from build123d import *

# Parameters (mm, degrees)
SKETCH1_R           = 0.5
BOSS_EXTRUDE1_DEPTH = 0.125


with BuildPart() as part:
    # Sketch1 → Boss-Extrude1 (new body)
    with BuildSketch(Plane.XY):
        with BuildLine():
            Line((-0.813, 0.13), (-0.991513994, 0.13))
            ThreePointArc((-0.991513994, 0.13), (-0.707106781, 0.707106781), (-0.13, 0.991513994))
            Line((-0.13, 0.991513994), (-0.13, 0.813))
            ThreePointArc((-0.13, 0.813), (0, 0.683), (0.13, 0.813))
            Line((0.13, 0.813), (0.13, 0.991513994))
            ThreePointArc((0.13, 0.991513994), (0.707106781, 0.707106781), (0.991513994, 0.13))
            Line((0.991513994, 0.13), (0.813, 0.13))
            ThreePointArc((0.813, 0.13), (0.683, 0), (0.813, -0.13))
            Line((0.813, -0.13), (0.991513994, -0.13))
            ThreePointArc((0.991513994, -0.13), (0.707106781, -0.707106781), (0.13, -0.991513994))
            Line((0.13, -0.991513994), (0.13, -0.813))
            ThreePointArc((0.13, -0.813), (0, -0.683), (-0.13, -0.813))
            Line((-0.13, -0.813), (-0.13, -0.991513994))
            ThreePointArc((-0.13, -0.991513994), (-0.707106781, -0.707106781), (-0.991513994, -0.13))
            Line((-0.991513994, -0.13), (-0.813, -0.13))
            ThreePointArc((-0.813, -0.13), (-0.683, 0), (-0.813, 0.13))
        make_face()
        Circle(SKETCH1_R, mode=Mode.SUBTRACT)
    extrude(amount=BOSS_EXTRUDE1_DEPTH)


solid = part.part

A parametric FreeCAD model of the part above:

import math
import FreeCAD as App
import Part
import Sketcher
Q = App.Units.Quantity

doc = App.newDocument("Part")
body = doc.addObject("PartDesign::Body", "Body")

# Sketch on XY plane
sketch1 = body.newObject("Sketcher::SketchObject", "Sketch")
sketch1.AttachmentSupport = (doc.getObject("XY_Plane"), [""])
sketch1.MapMode = "FlatFace"
sketch1.addGeometry([
    Part.LineSegment(App.Vector(-0.99, 0.13, 0), App.Vector(-0.81, 0.13, 0)),  # 0
    Part.ArcOfCircle(Part.Circle(App.Vector(-0.81, 0, 0), App.Vector(0, 0, 1), 0.13), math.radians(-90), math.radians(90)),  # 1
    Part.LineSegment(App.Vector(-0.81, -0.13, 0), App.Vector(-0.99, -0.13, 0)),  # 2
    Part.ArcOfCircle(Part.Circle(App.Vector(0, 0, 0), App.Vector(0, 0, 1), 1), math.radians(-173), math.radians(-97)),  # 3
    Part.LineSegment(App.Vector(-0.13, -0.99, 0), App.Vector(-0.13, -0.81, 0)),  # 4
    Part.ArcOfCircle(Part.Circle(App.Vector(0, -0.81, 0), App.Vector(0, 0, 1), 0.13), math.radians(0), math.radians(180)),  # 5
    Part.LineSegment(App.Vector(0.13, -0.81, 0), App.Vector(0.13, -0.99, 0)),  # 6
    Part.ArcOfCircle(Part.Circle(App.Vector(0, 0, 0), App.Vector(0, 0, 1), 1), math.radians(-83), math.radians(-7)),  # 7
    Part.LineSegment(App.Vector(0.99, -0.13, 0), App.Vector(0.81, -0.13, 0)),  # 8
    Part.ArcOfCircle(Part.Circle(App.Vector(0.81, 0, 0), App.Vector(0, 0, 1), 0.13), math.radians(90), math.radians(270)),  # 9
    Part.LineSegment(App.Vector(0.81, 0.13, 0), App.Vector(0.99, 0.13, 0)),  # 10
    Part.ArcOfCircle(Part.Circle(App.Vector(0, 0, 0), App.Vector(0, 0, 1), 1), math.radians(7), math.radians(83)),  # 11
    Part.LineSegment(App.Vector(0.13, 0.99, 0), App.Vector(0.13, 0.81, 0)),  # 12
    Part.ArcOfCircle(Part.Circle(App.Vector(0, 0.81, 0), App.Vector(0, 0, 1), 0.13), math.radians(180), math.radians(360)),  # 13
    Part.LineSegment(App.Vector(-0.13, 0.81, 0), App.Vector(-0.13, 0.99, 0)),  # 14
    Part.ArcOfCircle(Part.Circle(App.Vector(0, 0, 0), App.Vector(0, 0, 1), 1), math.radians(97), math.radians(173)),  # 15
    Part.Circle(App.Vector(0, 0, 0), App.Vector(0, 0, 1), 0.5),  # 16
], False)
sketch1.addConstraint([
    Sketcher.Constraint("Tangent", 0, 2, 1, 2),
    Sketcher.Constraint("Tangent", 1, 1, 2, 1),
    Sketcher.Constraint("Coincident", 2, 2, 3, 1),
    Sketcher.Constraint("Coincident", 3, 2, 4, 1),
    Sketcher.Constraint("Tangent", 4, 2, 5, 2),
    Sketcher.Constraint("Tangent", 5, 1, 6, 1),
    Sketcher.Constraint("Coincident", 6, 2, 7, 1),
    Sketcher.Constraint("Coincident", 7, 2, 8, 1),
    Sketcher.Constraint("Tangent", 8, 2, 9, 2),
    Sketcher.Constraint("Tangent", 9, 1, 10, 1),
    Sketcher.Constraint("Coincident", 10, 2, 11, 1),
    Sketcher.Constraint("Coincident", 11, 2, 12, 1),
    Sketcher.Constraint("Tangent", 12, 2, 13, 2),
    Sketcher.Constraint("Tangent", 13, 1, 14, 1),
    Sketcher.Constraint("Coincident", 14, 2, 15, 1),
    Sketcher.Constraint("Coincident", 15, 2, 0, 1),
    Sketcher.Constraint("Horizontal", 0),
    Sketcher.Constraint("Horizontal", 2),
    Sketcher.Constraint("Vertical", 4),
    Sketcher.Constraint("Vertical", 6),
    Sketcher.Constraint("Horizontal", 8),
    Sketcher.Constraint("Horizontal", 10),
    Sketcher.Constraint("Vertical", 12),
    Sketcher.Constraint("Vertical", 14),
    Sketcher.Constraint("Coincident", 3, 3, -1, 1),
    Sketcher.Constraint("Coincident", 7, 3, -1, 1),
    Sketcher.Constraint("Coincident", 11, 3, -1, 1),
    Sketcher.Constraint("Coincident", 15, 3, -1, 1),
    Sketcher.Constraint("Coincident", 16, 3, -1, 1),
    Sketcher.Constraint("Equal", 1, 5),
    Sketcher.Constraint("Equal", 3, 7),
    Sketcher.Constraint("Equal", 5, 9),
    Sketcher.Constraint("Equal", 7, 11),
    Sketcher.Constraint("Equal", 9, 13),
    Sketcher.Constraint("Equal", 11, 15),
    Sketcher.Constraint("Symmetric", 1, 3, 9, 3, -1, 1),
    Sketcher.Constraint("Symmetric", 5, 3, 13, 3, -1, 1),
    Sketcher.Constraint("PointOnObject", 1, 3, -1),
    Sketcher.Constraint("PointOnObject", 5, 3, -2),
    Sketcher.Constraint("Equal", 10, 4),
    Sketcher.Constraint("Diameter", 16, Q("1 mm")),
    Sketcher.Constraint("Radius", 3, Q("1 mm")),
    Sketcher.Constraint("Radius", 1, Q("0.13 mm")),
    Sketcher.Constraint("DistanceX", 1, 3, -1, 1, Q("0.813 mm")),
])
pad1 = body.newObject("PartDesign::Pad", "Pad")
pad1.Profile = sketch1
pad1.Length = 0.125

doc.recompute()
